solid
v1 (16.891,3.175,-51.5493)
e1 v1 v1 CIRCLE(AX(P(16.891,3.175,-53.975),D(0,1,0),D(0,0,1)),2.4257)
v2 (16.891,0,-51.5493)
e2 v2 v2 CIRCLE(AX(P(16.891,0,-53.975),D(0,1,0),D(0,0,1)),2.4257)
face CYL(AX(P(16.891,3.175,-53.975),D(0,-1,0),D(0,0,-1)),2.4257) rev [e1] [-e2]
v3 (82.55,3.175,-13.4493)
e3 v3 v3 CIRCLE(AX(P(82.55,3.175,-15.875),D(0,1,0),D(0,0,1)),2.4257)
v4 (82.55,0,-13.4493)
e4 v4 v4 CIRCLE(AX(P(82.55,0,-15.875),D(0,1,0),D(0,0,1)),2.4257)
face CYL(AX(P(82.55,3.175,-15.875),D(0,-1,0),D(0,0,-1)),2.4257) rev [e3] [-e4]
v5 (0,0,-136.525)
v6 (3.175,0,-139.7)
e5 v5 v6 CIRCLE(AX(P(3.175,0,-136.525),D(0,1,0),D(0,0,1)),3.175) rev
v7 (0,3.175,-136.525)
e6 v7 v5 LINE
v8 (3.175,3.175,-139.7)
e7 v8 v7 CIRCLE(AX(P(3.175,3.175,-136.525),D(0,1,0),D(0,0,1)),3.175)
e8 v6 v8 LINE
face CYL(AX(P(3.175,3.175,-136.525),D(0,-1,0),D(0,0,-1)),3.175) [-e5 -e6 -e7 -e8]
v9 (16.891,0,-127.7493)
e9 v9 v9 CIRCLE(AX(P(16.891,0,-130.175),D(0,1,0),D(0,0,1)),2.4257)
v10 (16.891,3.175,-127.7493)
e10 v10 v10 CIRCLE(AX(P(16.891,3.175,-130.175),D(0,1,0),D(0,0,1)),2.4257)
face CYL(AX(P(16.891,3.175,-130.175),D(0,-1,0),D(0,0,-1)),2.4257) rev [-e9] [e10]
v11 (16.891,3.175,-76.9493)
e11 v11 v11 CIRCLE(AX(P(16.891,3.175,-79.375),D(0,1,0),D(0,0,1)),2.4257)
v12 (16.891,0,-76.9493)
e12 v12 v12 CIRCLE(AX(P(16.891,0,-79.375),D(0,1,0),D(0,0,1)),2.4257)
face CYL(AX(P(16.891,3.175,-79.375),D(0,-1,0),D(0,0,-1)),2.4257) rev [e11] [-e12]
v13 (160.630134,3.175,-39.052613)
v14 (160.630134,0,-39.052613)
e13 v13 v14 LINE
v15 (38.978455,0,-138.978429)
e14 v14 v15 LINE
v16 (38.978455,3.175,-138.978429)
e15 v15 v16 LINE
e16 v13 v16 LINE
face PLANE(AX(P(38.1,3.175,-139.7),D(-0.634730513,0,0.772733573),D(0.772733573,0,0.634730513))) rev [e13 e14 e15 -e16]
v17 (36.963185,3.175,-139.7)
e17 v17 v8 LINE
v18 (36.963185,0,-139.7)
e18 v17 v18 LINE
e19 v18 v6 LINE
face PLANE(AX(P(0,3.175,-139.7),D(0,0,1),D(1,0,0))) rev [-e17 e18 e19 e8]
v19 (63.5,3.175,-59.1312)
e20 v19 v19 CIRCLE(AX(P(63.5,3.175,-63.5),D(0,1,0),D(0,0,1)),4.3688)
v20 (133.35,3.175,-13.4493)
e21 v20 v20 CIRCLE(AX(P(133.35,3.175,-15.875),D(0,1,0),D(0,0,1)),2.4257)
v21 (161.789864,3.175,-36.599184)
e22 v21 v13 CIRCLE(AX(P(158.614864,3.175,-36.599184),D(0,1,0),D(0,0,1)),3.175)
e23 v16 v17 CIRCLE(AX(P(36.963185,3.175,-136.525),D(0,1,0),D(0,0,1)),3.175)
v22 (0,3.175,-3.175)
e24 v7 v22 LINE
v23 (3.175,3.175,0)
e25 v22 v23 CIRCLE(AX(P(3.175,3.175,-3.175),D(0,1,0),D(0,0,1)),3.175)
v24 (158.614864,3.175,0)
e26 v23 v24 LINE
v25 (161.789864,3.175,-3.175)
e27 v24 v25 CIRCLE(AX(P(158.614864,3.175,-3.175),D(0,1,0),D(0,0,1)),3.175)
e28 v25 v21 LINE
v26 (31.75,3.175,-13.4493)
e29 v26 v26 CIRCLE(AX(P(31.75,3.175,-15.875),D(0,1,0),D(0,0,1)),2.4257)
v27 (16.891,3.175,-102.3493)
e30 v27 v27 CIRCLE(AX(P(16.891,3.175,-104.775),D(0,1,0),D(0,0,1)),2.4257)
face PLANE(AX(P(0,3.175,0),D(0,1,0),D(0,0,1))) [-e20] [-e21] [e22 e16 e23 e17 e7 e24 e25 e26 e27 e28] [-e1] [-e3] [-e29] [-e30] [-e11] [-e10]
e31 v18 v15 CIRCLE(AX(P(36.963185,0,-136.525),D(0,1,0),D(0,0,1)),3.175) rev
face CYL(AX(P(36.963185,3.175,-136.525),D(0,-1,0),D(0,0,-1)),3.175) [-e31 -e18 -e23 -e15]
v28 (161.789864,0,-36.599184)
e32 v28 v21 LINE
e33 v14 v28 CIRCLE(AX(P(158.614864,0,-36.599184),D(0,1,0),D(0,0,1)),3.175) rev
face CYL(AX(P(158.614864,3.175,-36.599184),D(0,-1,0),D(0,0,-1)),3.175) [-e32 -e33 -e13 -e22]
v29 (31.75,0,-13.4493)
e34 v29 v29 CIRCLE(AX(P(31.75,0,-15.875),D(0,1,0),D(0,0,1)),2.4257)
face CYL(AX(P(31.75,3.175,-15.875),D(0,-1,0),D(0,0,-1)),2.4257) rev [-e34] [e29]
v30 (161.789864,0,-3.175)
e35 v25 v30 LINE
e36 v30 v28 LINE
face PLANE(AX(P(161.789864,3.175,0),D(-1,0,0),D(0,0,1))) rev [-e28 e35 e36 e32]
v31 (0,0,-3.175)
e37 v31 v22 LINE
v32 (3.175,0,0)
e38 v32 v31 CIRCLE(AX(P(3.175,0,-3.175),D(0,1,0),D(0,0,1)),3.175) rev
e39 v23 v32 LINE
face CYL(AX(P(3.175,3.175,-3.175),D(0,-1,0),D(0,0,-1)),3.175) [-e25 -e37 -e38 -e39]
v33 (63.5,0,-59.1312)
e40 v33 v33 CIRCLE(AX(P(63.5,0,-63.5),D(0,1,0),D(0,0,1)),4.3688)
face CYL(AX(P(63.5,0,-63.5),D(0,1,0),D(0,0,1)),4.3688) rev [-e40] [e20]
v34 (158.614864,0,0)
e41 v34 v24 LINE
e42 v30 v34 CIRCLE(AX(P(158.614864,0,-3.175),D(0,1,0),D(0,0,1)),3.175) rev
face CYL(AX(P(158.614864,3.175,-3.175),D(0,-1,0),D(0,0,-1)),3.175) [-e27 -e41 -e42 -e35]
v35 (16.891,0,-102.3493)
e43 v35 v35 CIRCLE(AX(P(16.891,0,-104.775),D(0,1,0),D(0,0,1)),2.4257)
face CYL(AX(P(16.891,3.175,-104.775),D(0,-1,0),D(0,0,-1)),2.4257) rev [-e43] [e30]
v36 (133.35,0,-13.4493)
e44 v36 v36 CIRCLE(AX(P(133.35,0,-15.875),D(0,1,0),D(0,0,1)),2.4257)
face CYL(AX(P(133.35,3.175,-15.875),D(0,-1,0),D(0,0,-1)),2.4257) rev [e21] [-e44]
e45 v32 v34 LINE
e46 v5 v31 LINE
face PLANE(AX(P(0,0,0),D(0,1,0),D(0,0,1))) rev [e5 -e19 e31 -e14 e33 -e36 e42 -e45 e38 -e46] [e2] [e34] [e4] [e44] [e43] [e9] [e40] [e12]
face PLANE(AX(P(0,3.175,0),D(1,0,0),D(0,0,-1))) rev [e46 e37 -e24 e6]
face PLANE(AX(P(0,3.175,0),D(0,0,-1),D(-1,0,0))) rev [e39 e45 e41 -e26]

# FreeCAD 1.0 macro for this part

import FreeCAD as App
import Part
import Sketcher

V = App.Vector
Q = App.Units.Quantity


def edges_at(feature, points):
    """Names of the edges that pass closest to the given points."""
    edges = feature.Shape.Edges
    near = lambda p: min(range(len(edges)), key=lambda i: edges[i].distToShape(Part.Vertex(*p))[0])
    return sorted({f"Edge{near(p) + 1}" for p in points})


def add_polygon(sketch, points):
    """Adds a closed chain of lines whose ends are joined by coincident constraints."""
    first, n = sketch.GeometryCount, len(points)
    for a, b in zip(points, points[1:] + points[:1]):
        sketch.addGeometry(Part.LineSegment(App.Vector(*a, 0), App.Vector(*b, 0)), False)
    for i in range(n):
        sketch.addConstraint(Sketcher.Constraint("Coincident", first + i, 2, first + (i + 1) % n, 1))

doc = App.newDocument("Part")
params = doc.addObject("Spreadsheet::Sheet", "Params")
for row, (alias, value) in enumerate([
    ("sketch1_diameter", "0.191 in"),
    ("sketch1_width", "1.5 in"),
    ("sketch1_height", "5.5 in"),
    ("pad1_length", "0.125 in"),
    ("fillet_radius", "0.125 in"),
    ("sketch2_diameter", "0.344 in"),
], start=1):
    params.set(f"A{row}", alias)
    params.set(f"B{row}", "=" + value)
    params.setAlias(f"B{row}", alias)

body = doc.addObject("PartDesign::Body", "Body")

sketch1 = body.newObject("Sketcher::SketchObject", "Sketch")
sketch1.AttachmentSupport = (doc.getObject("XZ_Plane"), [""])
sketch1.MapMode = "FlatFace"
add_polygon(sketch1, [(0, -139.7), (0, 0), (161.789864, 0), (161.789864, -38.1), (38.1, -139.7)])
sketch1.addGeometry(Part.Circle(V(133.35, -15.875, 0), V(0, 0, 1), 2.4257), False)
sketch1.addGeometry(Part.Circle(V(82.55, -15.875, 0), V(0, 0, 1), 2.4257), False)
sketch1.addGeometry(Part.Circle(V(31.75, -15.875, 0), V(0, 0, 1), 2.4257), False)
sketch1.addGeometry(Part.Circle(V(16.891, -53.975, 0), V(0, 0, 1), 2.4257), False)
sketch1.addGeometry(Part.Circle(V(16.891, -79.375, 0), V(0, 0, 1), 2.4257), False)
sketch1.addGeometry(Part.Circle(V(16.891, -104.775, 0), V(0, 0, 1), 2.4257), False)
sketch1.addGeometry(Part.Circle(V(16.891, -130.175, 0), V(0, 0, 1), 2.4257), False)
sketch1.addConstraint([
    Sketcher.Constraint("Vertical", 0),
    Sketcher.Constraint("Horizontal", 1),
    Sketcher.Constraint("Vertical", 2),
    Sketcher.Constraint("Horizontal", 4),
    Sketcher.Constraint("Coincident", 0, 2, -1, 1),
    Sketcher.Constraint("Equal", 5, 6),
    Sketcher.Constraint("Equal", 6, 7),
    Sketcher.Constraint("Equal", 7, 8),
    Sketcher.Constraint("Equal", 8, 9),
    Sketcher.Constraint("Equal", 9, 10),
    Sketcher.Constraint("Equal", 10, 11),
    Sketcher.Constraint("Horizontal", 5, 3, 6, 3),
    Sketcher.Constraint("Horizontal", 6, 3, 7, 3),
    Sketcher.Constraint("Vertical", 8, 3, 9, 3),
    Sketcher.Constraint("Vertical", 9, 3, 10, 3),
    Sketcher.Constraint("Vertical", 10, 3, 11, 3),
    Sketcher.Constraint("Equal", 4, 2),
    Sketcher.Constraint("Diameter", 5, Q("0.191 in")),
    Sketcher.Constraint("DistanceX", 4, 2, 4, 1, Q("1.5 in")),
    Sketcher.Constraint("DistanceY", 0, 1, 0, 2, Q("5.5 in")),
    Sketcher.Constraint("DistanceX", 6, 3, 5, 3, Q("2 in")),
    Sketcher.Constraint("DistanceX", 7, 3, 6, 3, Q("2 in")),
    Sketcher.Constraint("DistanceY", 9, 3, 8, 3, Q("1 in")),
    Sketcher.Constraint("DistanceY", 10, 3, 9, 3, Q("1 in")),
    Sketcher.Constraint("DistanceY", 11, 3, 10, 3, Q("1 in")),
    Sketcher.Constraint("Angle", 3, Q("-140.6 deg")),
    Sketcher.Constraint("DistanceY", 8, 3, 7, 3, Q("1.5 in")),
    Sketcher.Constraint("DistanceX", -1, 1, 5, 3, Q("5.25 in")),
    Sketcher.Constraint("DistanceY", 5, 3, -1, 1, Q("0.625 in")),
    Sketcher.Constraint("DistanceX", -1, 1, 8, 3, Q("0.665 in")),
])
sketch1.setExpression("Constraints[22]", "Params.sketch1_diameter")
sketch1.setExpression("Constraints[23]", "Params.sketch1_width")
sketch1.setExpression("Constraints[24]", "Params.sketch1_height")
pad1 = body.newObject("PartDesign::Pad", "Pad")
pad1.Profile = sketch1
pad1.setExpression("Length", "Params.pad1_length")
pad1.Reversed = True
doc.recompute()

fillet = body.newObject("PartDesign::Fillet", "Fillet")
fillet.Base = (pad1, edges_at(pad1, [
    (0, 1.587, 0),
    (0, 1.587, -139.7),
    (38.1, 1.587, -139.7),
    (161.79, 1.587, -38.1),
    (161.79, 1.587, 0),
]))
fillet.setExpression("Radius", "Params.fillet_radius")

sketch2 = body.newObject("Sketcher::SketchObject", "Sketch001")
sketch2.AttachmentSupport = (doc.getObject("XZ_Plane"), [""])
sketch2.MapMode = "FlatFace"
sketch2.AttachmentOffset = App.Placement(V(0, 0, -0.125 * 25.4), App.Rotation())
sketch2.addGeometry(Part.Circle(V(63.5, -63.5, 0), V(0, 0, 1), 4.3688), False)
sketch2.addConstraint([
    Sketcher.Constraint("Diameter", 0, Q("0.344 in")),
    Sketcher.Constraint("DistanceX", -1, 1, 0, 3, Q("2.5 in")),
    Sketcher.Constraint("DistanceY", 0, 3, -1, 1, Q("2.5 in")),
])
sketch2.setExpression("Constraints[0]", "Params.sketch2_diameter")
pocket1 = body.newObject("PartDesign::Pocket", "Pocket")
pocket1.Profile = sketch2
pocket1.Type = "ThroughAll"
pocket1.Reversed = True

doc.recompute()
